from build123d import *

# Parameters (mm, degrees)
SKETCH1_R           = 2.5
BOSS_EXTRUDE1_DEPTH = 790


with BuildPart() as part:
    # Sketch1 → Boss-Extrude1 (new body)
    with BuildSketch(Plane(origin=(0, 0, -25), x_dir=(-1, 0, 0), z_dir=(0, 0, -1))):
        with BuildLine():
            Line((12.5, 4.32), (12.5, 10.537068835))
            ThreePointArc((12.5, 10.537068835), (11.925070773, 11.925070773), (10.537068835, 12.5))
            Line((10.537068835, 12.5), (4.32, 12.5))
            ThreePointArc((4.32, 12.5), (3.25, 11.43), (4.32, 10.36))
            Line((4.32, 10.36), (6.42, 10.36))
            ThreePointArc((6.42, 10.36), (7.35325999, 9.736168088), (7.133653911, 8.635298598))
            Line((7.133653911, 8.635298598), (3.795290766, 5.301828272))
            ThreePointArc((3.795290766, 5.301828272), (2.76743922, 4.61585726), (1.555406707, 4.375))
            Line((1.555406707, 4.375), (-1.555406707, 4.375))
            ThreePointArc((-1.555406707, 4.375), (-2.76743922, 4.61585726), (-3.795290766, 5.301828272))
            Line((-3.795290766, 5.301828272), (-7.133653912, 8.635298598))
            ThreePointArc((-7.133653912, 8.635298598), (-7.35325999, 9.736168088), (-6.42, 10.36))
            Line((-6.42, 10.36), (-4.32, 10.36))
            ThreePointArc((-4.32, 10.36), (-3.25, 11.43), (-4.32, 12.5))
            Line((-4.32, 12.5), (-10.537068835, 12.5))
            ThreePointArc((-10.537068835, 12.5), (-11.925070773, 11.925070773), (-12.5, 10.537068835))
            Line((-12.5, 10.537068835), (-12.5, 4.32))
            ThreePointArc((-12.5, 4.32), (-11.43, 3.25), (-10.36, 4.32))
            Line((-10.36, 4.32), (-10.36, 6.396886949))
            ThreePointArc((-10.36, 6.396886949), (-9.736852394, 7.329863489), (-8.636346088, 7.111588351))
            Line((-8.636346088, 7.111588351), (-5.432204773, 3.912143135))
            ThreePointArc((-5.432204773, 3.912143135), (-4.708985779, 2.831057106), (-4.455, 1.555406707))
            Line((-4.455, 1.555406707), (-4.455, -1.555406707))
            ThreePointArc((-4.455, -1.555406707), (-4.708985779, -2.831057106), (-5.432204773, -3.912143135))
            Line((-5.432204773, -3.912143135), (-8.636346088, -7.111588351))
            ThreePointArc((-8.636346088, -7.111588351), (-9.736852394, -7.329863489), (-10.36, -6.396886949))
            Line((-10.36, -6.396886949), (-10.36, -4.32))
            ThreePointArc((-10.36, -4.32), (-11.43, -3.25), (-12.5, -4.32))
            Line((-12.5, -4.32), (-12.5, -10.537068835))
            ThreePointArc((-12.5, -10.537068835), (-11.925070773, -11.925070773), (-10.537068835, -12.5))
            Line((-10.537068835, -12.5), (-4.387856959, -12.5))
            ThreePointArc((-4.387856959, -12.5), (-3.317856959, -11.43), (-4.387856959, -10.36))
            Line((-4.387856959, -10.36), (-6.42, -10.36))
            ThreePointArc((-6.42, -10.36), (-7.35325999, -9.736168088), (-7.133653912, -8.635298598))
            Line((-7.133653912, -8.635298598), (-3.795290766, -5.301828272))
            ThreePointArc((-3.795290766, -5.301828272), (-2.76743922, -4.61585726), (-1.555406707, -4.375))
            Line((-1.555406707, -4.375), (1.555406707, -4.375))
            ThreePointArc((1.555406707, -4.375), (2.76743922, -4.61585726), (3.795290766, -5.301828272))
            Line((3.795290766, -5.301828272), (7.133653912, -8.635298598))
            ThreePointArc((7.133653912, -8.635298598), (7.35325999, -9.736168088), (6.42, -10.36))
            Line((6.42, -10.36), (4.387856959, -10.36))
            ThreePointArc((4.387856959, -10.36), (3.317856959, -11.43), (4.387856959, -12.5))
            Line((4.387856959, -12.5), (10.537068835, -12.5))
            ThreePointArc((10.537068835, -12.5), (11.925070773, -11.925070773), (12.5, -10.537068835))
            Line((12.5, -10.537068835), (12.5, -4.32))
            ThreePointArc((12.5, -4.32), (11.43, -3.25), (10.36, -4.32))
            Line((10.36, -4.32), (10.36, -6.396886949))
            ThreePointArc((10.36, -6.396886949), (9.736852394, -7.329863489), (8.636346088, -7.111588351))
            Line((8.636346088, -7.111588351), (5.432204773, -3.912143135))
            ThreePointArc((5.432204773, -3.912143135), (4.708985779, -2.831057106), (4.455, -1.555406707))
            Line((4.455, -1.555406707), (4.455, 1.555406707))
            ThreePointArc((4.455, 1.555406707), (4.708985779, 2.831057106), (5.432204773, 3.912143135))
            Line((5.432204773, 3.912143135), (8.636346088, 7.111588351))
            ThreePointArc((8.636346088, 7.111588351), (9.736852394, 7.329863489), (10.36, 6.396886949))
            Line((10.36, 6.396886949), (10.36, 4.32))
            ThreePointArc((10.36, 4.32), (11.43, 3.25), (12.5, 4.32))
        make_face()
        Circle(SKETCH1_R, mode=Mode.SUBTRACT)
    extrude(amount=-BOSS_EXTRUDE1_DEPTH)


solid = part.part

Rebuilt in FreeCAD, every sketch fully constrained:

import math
import FreeCAD as App
import Part
import Sketcher

V = App.Vector
Q = App.Units.Quantity

doc = App.newDocument("Part")
body = doc.addObject("PartDesign::Body", "Body")

sketch1 = body.newObject("Sketcher::SketchObject", "Sketch")
sketch1.AttachmentSupport = (doc.getObject("XY_Plane"), [""])
sketch1.MapMode = "FlatFace"
sketch1.AttachmentOffset = App.Placement(V(0, 0, -25), App.Rotation())
sketch1.addGeometry(Part.LineSegment(V(-12.5, 4.3, 0), V(-12.5, 10.5, 0)), False)
sketch1.addGeometry(Part.ArcOfCircle(Part.Circle(V(-10.5, 10.5, 0), V(0, 0, 1), 2), math.radians(90), math.radians(180)), False)
sketch1.addGeometry(Part.LineSegment(V(-10.5, 12.5, 0), V(-4.3, 12.5, 0)), False)
sketch1.addGeometry(Part.ArcOfCircle(Part.Circle(V(-4.3, 11.4, 0), V(0, 0, 1), 1.1), math.radians(-90), math.radians(90)), False)
sketch1.addGeometry(Part.LineSegment(V(-4.3, 10.4, 0), V(-6.4, 10.4, 0)), False)
sketch1.addGeometry(Part.ArcOfCircle(Part.Circle(V(-6.4, 9.4, 0), V(0, 0, 1), 1), math.radians(90), math.radians(225)), False)
sketch1.addGeometry(Part.LineSegment(V(-7.1, 8.6, 0), V(-3.8, 5.3, 0)), False)
sketch1.addGeometry(Part.ArcOfCircle(Part.Circle(V(-1.6, 7.5, 0), V(0, 0, 1), 3.2), math.radians(-135), math.radians(-90)), False)
sketch1.addGeometry(Part.LineSegment(V(-1.6, 4.4, 0), V(1.6, 4.4, 0)), False)
sketch1.addGeometry(Part.ArcOfCircle(Part.Circle(V(1.6, 7.5, 0), V(0, 0, 1), 3.2), math.radians(-90), math.radians(-45)), False)
sketch1.addGeometry(Part.LineSegment(V(3.8, 5.3, 0), V(7.1, 8.6, 0)), False)
sketch1.addGeometry(Part.ArcOfCircle(Part.Circle(V(6.4, 9.3, 0), V(0, 0, 1), 1), math.radians(-45), math.radians(90)), False)
sketch1.addGeometry(Part.LineSegment(V(6.4, 10.4, 0), V(4.3, 10.4, 0)), False)
sketch1.addGeometry(Part.ArcOfCircle(Part.Circle(V(4.3, 11.4, 0), V(0, 0, 1), 1.1), math.radians(90), math.radians(270)), False)
sketch1.addGeometry(Part.LineSegment(V(4.3, 12.5, 0), V(10.5, 12.5, 0)), False)
sketch1.addGeometry(Part.ArcOfCircle(Part.Circle(V(10.5, 10.5, 0), V(0, 0, 1), 2), math.radians(0), math.radians(90)), False)
sketch1.addGeometry(Part.LineSegment(V(12.5, 10.5, 0), V(12.5, 4.3, 0)), False)
sketch1.addGeometry(Part.ArcOfCircle(Part.Circle(V(11.4, 4.3, 0), V(0, 0, 1), 1.1), math.radians(180), math.radians(360)), False)
sketch1.addGeometry(Part.LineSegment(V(10.4, 4.3, 0), V(10.4, 6.4, 0)), False)
sketch1.addGeometry(Part.ArcOfCircle(Part.Circle(V(9.3, 6.4, 0), V(0, 0, 1), 1), math.radians(0), math.radians(135)), False)
sketch1.addGeometry(Part.LineSegment(V(8.6, 7.1, 0), V(5.4, 3.9, 0)), False)
sketch1.addGeometry(Part.ArcOfCircle(Part.Circle(V(7.8, 1.6, 0), V(0, 0, 1), 3.3), math.radians(135), math.radians(180)), False)
sketch1.addGeometry(Part.LineSegment(V(4.5, 1.6, 0), V(4.5, -1.6, 0)), False)
sketch1.addGeometry(Part.ArcOfCircle(Part.Circle(V(7.8, -1.6, 0), V(0, 0, 1), 3.3), math.radians(180), math.radians(225)), False)
sketch1.addGeometry(Part.LineSegment(V(5.4, -3.9, 0), V(8.6, -7.1, 0)), False)
sketch1.addGeometry(Part.ArcOfCircle(Part.Circle(V(9.3, -6.4, 0), V(0, 0, 1), 1), math.radians(-135), math.radians(0)), False)
sketch1.addGeometry(Part.LineSegment(V(10.4, -6.4, 0), V(10.4, -4.3, 0)), False)
sketch1.addGeometry(Part.ArcOfCircle(Part.Circle(V(11.4, -4.3, 0), V(0, 0, 1), 1.1), math.radians(0), math.radians(180)), False)
sketch1.addGeometry(Part.LineSegment(V(12.5, -4.3, 0), V(12.5, -10.5, 0)), False)
sketch1.addGeometry(Part.ArcOfCircle(Part.Circle(V(10.5, -10.5, 0), V(0, 0, 1), 2), math.radians(-90), math.radians(0)), False)
sketch1.addGeometry(Part.LineSegment(V(10.5, -12.5, 0), V(4.4, -12.5, 0)), False)
sketch1.addGeometry(Part.ArcOfCircle(Part.Circle(V(4.4, -11.4, 0), V(0, 0, 1), 1.1), math.radians(90), math.radians(270)), False)
sketch1.addGeometry(Part.LineSegment(V(4.4, -10.4, 0), V(6.4, -10.4, 0)), False)
sketch1.addGeometry(Part.ArcOfCircle(Part.Circle(V(6.4, -9.3, 0), V(0, 0, 1), 1), math.radians(-90), math.radians(45)), False)
sketch1.addGeometry(Part.LineSegment(V(7.1, -8.6, 0), V(3.8, -5.3, 0)), False)
sketch1.addGeometry(Part.ArcOfCircle(Part.Circle(V(1.6, -7.5, 0), V(0, 0, 1), 3.2), math.radians(45), math.radians(90)), False)
sketch1.addGeometry(Part.LineSegment(V(1.6, -4.4, 0), V(-1.6, -4.4, 0)), False)
sketch1.addGeometry(Part.ArcOfCircle(Part.Circle(V(-1.6, -7.5, 0), V(0, 0, 1), 3.2), math.radians(90), math.radians(135)), False)
sketch1.addGeometry(Part.LineSegment(V(-3.8, -5.3, 0), V(-7.1, -8.6, 0)), False)
sketch1.addGeometry(Part.ArcOfCircle(Part.Circle(V(-6.4, -9.3, 0), V(0, 0, 1), 1), math.radians(135), math.radians(270)), False)
sketch1.addGeometry(Part.LineSegment(V(-6.4, -10.4, 0), V(-4.4, -10.4, 0)), False)
sketch1.addGeometry(Part.ArcOfCircle(Part.Circle(V(-4.4, -11.4, 0), V(0, 0, 1), 1.1), math.radians(-90), math.radians(90)), False)
sketch1.addGeometry(Part.LineSegment(V(-4.4, -12.5, 0), V(-10.5, -12.5, 0)), False)
sketch1.addGeometry(Part.ArcOfCircle(Part.Circle(V(-10.5, -10.5, 0), V(0, 0, 1), 2), math.radians(180), math.radians(270)), False)
sketch1.addGeometry(Part.LineSegment(V(-12.5, -10.5, 0), V(-12.5, -4.3, 0)), False)
sketch1.addGeometry(Part.ArcOfCircle(Part.Circle(V(-11.4, -4.3, 0), V(0, 0, 1), 1.1), math.radians(0), math.radians(180)), False)
sketch1.addGeometry(Part.LineSegment(V(-10.4, -4.3, 0), V(-10.4, -6.4, 0)), False)
sketch1.addGeometry(Part.ArcOfCircle(Part.Circle(V(-9.3, -6.4, 0), V(0, 0, 1), 1), math.radians(-180), math.radians(-45)), False)
sketch1.addGeometry(Part.LineSegment(V(-8.6, -7.1, 0), V(-5.4, -3.9, 0)), False)
sketch1.addGeometry(Part.ArcOfCircle(Part.Circle(V(-7.8, -1.6, 0), V(0, 0, 1), 3.3), math.radians(-45), math.radians(0)), False)
sketch1.addGeometry(Part.LineSegment(V(-4.5, -1.6, 0), V(-4.5, 1.6, 0)), False)
sketch1.addGeometry(Part.ArcOfCircle(Part.Circle(V(-7.8, 1.6, 0), V(0, 0, 1), 3.3), math.radians(0), math.radians(45)), False)
sketch1.addGeometry(Part.LineSegment(V(-5.4, 3.9, 0), V(-8.6, 7.1, 0)), False)
sketch1.addGeometry(Part.ArcOfCircle(Part.Circle(V(-9.3, 6.4, 0), V(0, 0, 1), 1), math.radians(45), math.radians(180)), False)
sketch1.addGeometry(Part.LineSegment(V(-10.4, 6.4, 0), V(-10.4, 4.3, 0)), False)
sketch1.addGeometry(Part.ArcOfCircle(Part.Circle(V(-11.4, 4.3, 0), V(0, 0, 1), 1.1), math.radians(180), math.radians(360)), False)
sketch1.addGeometry(Part.Circle(V(0, 0, 0), V(0, 0, 1), 2.5), False)
sketch1.addConstraint(Sketcher.Constraint("Tangent", 0, 2, 1, 2))
sketch1.addConstraint(Sketcher.Constraint("Tangent", 1, 1, 2, 1))
sketch1.addConstraint(Sketcher.Constraint("Tangent", 2, 2, 3, 2))
sketch1.addConstraint(Sketcher.Constraint("Tangent", 3, 1, 4, 1))
sketch1.addConstraint(Sketcher.Constraint("Tangent", 4, 2, 5, 1))
sketch1.addConstraint(Sketcher.Constraint("Tangent", 5, 2, 6, 1))
sketch1.addConstraint(Sketcher.Constraint("Tangent", 6, 2, 7, 1))
sketch1.addConstraint(Sketcher.Constraint("Tangent", 7, 2, 8, 1))
sketch1.addConstraint(Sketcher.Constraint("Tangent", 8, 2, 9, 1))
sketch1.addConstraint(Sketcher.Constraint("Tangent", 9, 2, 10, 1))
sketch1.addConstraint(Sketcher.Constraint("Tangent", 10, 2, 11, 1))
sketch1.addConstraint(Sketcher.Constraint("Tangent", 11, 2, 12, 1))
sketch1.addConstraint(Sketcher.Constraint("Tangent", 12, 2, 13, 2))
sketch1.addConstraint(Sketcher.Constraint("Tangent", 13, 1, 14, 1))
sketch1.addConstraint(Sketcher.Constraint("Tangent", 14, 2, 15, 2))
sketch1.addConstraint(Sketcher.Constraint("Tangent", 15, 1, 16, 1))
sketch1.addConstraint(Sketcher.Constraint("Tangent", 16, 2, 17, 2))
sketch1.addConstraint(Sketcher.Constraint("Tangent", 17, 1, 18, 1))
sketch1.addConstraint(Sketcher.Constraint("Tangent", 18, 2, 19, 1))
sketch1.addConstraint(Sketcher.Constraint("Tangent", 19, 2, 20, 1))
sketch1.addConstraint(Sketcher.Constraint("Tangent", 20, 2, 21, 1))
sketch1.addConstraint(Sketcher.Constraint("Tangent", 21, 2, 22, 1))
sketch1.addConstraint(Sketcher.Constraint("Tangent", 22, 2, 23, 1))
sketch1.addConstraint(Sketcher.Constraint("Tangent", 23, 2, 24, 1))
sketch1.addConstraint(Sketcher.Constraint("Tangent", 24, 2, 25, 1))
sketch1.addConstraint(Sketcher.Constraint("Tangent", 25, 2, 26, 1))
sketch1.addConstraint(Sketcher.Constraint("Tangent", 26, 2, 27, 2))
sketch1.addConstraint(Sketcher.Constraint("Tangent", 27, 1, 28, 1))
sketch1.addConstraint(Sketcher.Constraint("Tangent", 28, 2, 29, 2))
sketch1.addConstraint(Sketcher.Constraint("Tangent", 29, 1, 30, 1))
sketch1.addConstraint(Sketcher.Constraint("Tangent", 30, 2, 31, 2))
sketch1.addConstraint(Sketcher.Constraint("Tangent", 31, 1, 32, 1))
sketch1.addConstraint(Sketcher.Constraint("Tangent", 32, 2, 33, 1))
sketch1.addConstraint(Sketcher.Constraint("Tangent", 33, 2, 34, 1))
sketch1.addConstraint(Sketcher.Constraint("Tangent", 34, 2, 35, 1))
sketch1.addConstraint(Sketcher.Constraint("Tangent", 35, 2, 36, 1))
sketch1.addConstraint(Sketcher.Constraint("Tangent", 36, 2, 37, 1))
sketch1.addConstraint(Sketcher.Constraint("Tangent", 37, 2, 38, 1))
sketch1.addConstraint(Sketcher.Constraint("Tangent", 38, 2, 39, 1))
sketch1.addConstraint(Sketcher.Constraint("Tangent", 39, 2, 40, 1))
sketch1.addConstraint(Sketcher.Constraint("Tangent", 40, 2, 41, 2))
sketch1.addConstraint(Sketcher.Constraint("Tangent", 41, 1, 42, 1))
sketch1.addConstraint(Sketcher.Constraint("Tangent", 42, 2, 43, 2))
sketch1.addConstraint(Sketcher.Constraint("Tangent", 43, 1, 44, 1))
sketch1.addConstraint(Sketcher.Constraint("Tangent", 44, 2, 45, 2))
sketch1.addConstraint(Sketcher.Constraint("Tangent", 45, 1, 46, 1))
sketch1.addConstraint(Sketcher.Constraint("Tangent", 46, 2, 47, 1))
sketch1.addConstraint(Sketcher.Constraint("Tangent", 47, 2, 48, 1))
sketch1.addConstraint(Sketcher.Constraint("Tangent", 48, 2, 49, 1))
sketch1.addConstraint(Sketcher.Constraint("Tangent", 49, 2, 50, 1))
sketch1.addConstraint(Sketcher.Constraint("Tangent", 50, 2, 51, 1))
sketch1.addConstraint(Sketcher.Constraint("Tangent", 51, 2, 52, 1))
sketch1.addConstraint(Sketcher.Constraint("Tangent", 52, 2, 53, 1))
sketch1.addConstraint(Sketcher.Constraint("Tangent", 53, 2, 54, 1))
sketch1.addConstraint(Sketcher.Constraint("Tangent", 54, 2, 55, 2))
sketch1.addConstraint(Sketcher.Constraint("Tangent", 55, 1, 0, 1))
sketch1.addConstraint(Sketcher.Constraint("Vertical", 0))
sketch1.addConstraint(Sketcher.Constraint("Horizontal", 2))
sketch1.addConstraint(Sketcher.Constraint("Horizontal", 4))
sketch1.addConstraint(Sketcher.Constraint("Horizontal", 8))
sketch1.addConstraint(Sketcher.Constraint("Horizontal", 12))
sketch1.addConstraint(Sketcher.Constraint("Horizontal", 14))
sketch1.addConstraint(Sketcher.Constraint("Vertical", 16))
sketch1.addConstraint(Sketcher.Constraint("Vertical", 18))
sketch1.addConstraint(Sketcher.Constraint("Vertical", 22))
sketch1.addConstraint(Sketcher.Constraint("Vertical", 26))
sketch1.addConstraint(Sketcher.Constraint("Vertical", 28))
sketch1.addConstraint(Sketcher.Constraint("Horizontal", 30))
sketch1.addConstraint(Sketcher.Constraint("Horizontal", 32))
sketch1.addConstraint(Sketcher.Constraint("Horizontal", 36))
sketch1.addConstraint(Sketcher.Constraint("Horizontal", 40))
sketch1.addConstraint(Sketcher.Constraint("Horizontal", 42))
sketch1.addConstraint(Sketcher.Constraint("Vertical", 44))
sketch1.addConstraint(Sketcher.Constraint("Vertical", 46))
sketch1.addConstraint(Sketcher.Constraint("Vertical", 50))
sketch1.addConstraint(Sketcher.Constraint("Vertical", 54))
sketch1.addConstraint(Sketcher.Constraint("Coincident", 56, 3, -1, 1))
sketch1.addConstraint(Sketcher.Constraint("Equal", 7, 9))
sketch1.addConstraint(Sketcher.Constraint("Equal", 5, 11))
sketch1.addConstraint(Sketcher.Constraint("Equal", 3, 13))
sketch1.addConstraint(Sketcher.Constraint("Equal", 1, 15))
sketch1.addConstraint(Sketcher.Constraint("Equal", 13, 17))
sketch1.addConstraint(Sketcher.Constraint("Equal", 11, 19))
sketch1.addConstraint(Sketcher.Constraint("Equal", 21, 23))
sketch1.addConstraint(Sketcher.Constraint("Equal", 19, 25))
sketch1.addConstraint(Sketcher.Constraint("Equal", 17, 27))
sketch1.addConstraint(Sketcher.Constraint("Equal", 15, 29))
sketch1.addConstraint(Sketcher.Constraint("Equal", 27, 31))
sketch1.addConstraint(Sketcher.Constraint("Equal", 25, 33))
sketch1.addConstraint(Sketcher.Constraint("Equal", 9, 35))
sketch1.addConstraint(Sketcher.Constraint("Equal", 35, 37))
sketch1.addConstraint(Sketcher.Constraint("Equal", 33, 39))
sketch1.addConstraint(Sketcher.Constraint("Equal", 31, 41))
sketch1.addConstraint(Sketcher.Constraint("Equal", 29, 43))
sketch1.addConstraint(Sketcher.Constraint("Equal", 41, 45))
sketch1.addConstraint(Sketcher.Constraint("Equal", 39, 47))
sketch1.addConstraint(Sketcher.Constraint("Equal", 23, 49))
sketch1.addConstraint(Sketcher.Constraint("Equal", 49, 51))
sketch1.addConstraint(Sketcher.Constraint("Equal", 47, 53))
sketch1.addConstraint(Sketcher.Constraint("Equal", 45, 55))
sketch1.addConstraint(Sketcher.Constraint("Symmetric", 1, 3, 29, 3, -1, 1))
sketch1.addConstraint(Sketcher.Constraint("Symmetric", 7, 3, 35, 3, -1, 1))
sketch1.addConstraint(Sketcher.Constraint("Symmetric", 11, 3, 39, 3, -1, 1))
sketch1.addConstraint(Sketcher.Constraint("Symmetric", 17, 3, 45, 3, -1, 1))
sketch1.addConstraint(Sketcher.Constraint("Symmetric", 21, 3, 49, 3, -1, 1))
sketch1.addConstraint(Sketcher.Constraint("Symmetric", 23, 2, 51, 2, -1, 1))
sketch1.addConstraint(Sketcher.Constraint("Symmetric", 5, 3, 11, 3, -2))
sketch1.addConstraint(Sketcher.Constraint("Symmetric", 27, 3, 45, 3, -2))
sketch1.addConstraint(Sketcher.Constraint("Symmetric", 34, 2, 37, 2, -2))
sketch1.addConstraint(Sketcher.Constraint("Symmetric", 24, 2, 47, 2, -2))
sketch1.addConstraint(Sketcher.Constraint("Parallel", 10, 20))
sketch1.addConstraint(Sketcher.Constraint("Parallel", 6, 24))
sketch1.addConstraint(Sketcher.Constraint("Parallel", 20, 38))
sketch1.addConstraint(Sketcher.Constraint("Horizontal", 17, 3, 55, 3))
sketch1.addConstraint(Sketcher.Constraint("Equal", 4, 12))
sketch1.addConstraint(Sketcher.Constraint("Equal", 32, 40))
sketch1.addConstraint(Sketcher.Constraint("Equal", 14, 0))
sketch1.addConstraint(Sketcher.Constraint("Equal", 36, 22))
sketch1.addConstraint(Sketcher.Constraint("Diameter", 56, Q("5 mm")))
sketch1.addConstraint(Sketcher.Constraint("Radius", 3, Q("1.07 mm")))
sketch1.addConstraint(Sketcher.Constraint("Radius", 5, Q("1.01 mm")))
sketch1.addConstraint(Sketcher.Constraint("Radius", 7, Q("3.17 mm")))
sketch1.addConstraint(Sketcher.Constraint("DistanceX", 4, 2, 4, 1, Q("2.1 mm")))
sketch1.addConstraint(Sketcher.Constraint("DistanceX", 0, 2, -1, 1, Q("12.5 mm")))
sketch1.addConstraint(Sketcher.Constraint("DistanceY", -1, 1, 1, 1, Q("12.5 mm")))
sketch1.addConstraint(Sketcher.Constraint("DistanceX", 3, 3, -1, 1, Q("4.32 mm")))
sketch1.addConstraint(Sketcher.Constraint("Radius", 1, Q("1.962931 mm")))
sketch1.addConstraint(Sketcher.Constraint("DistanceY", -1, 1, 7, 3, Q("7.545 mm")))
sketch1.addConstraint(Sketcher.Constraint("DistanceX", -1, 1, 21, 2, Q("4.455 mm")))
sketch1.addConstraint(Sketcher.Constraint("Radius", 21, Q("3.330487 mm")))
sketch1.addConstraint(Sketcher.Constraint("Distance", 6, Q("4.7177 mm")))
sketch1.addConstraint(Sketcher.Constraint("DistanceX", 30, 2, 30, 1, Q("6.149212 mm")))
pad1 = body.newObject("PartDesign::Pad", "Pad")
pad1.Profile = sketch1
pad1.Length = 790

doc.recompute()
